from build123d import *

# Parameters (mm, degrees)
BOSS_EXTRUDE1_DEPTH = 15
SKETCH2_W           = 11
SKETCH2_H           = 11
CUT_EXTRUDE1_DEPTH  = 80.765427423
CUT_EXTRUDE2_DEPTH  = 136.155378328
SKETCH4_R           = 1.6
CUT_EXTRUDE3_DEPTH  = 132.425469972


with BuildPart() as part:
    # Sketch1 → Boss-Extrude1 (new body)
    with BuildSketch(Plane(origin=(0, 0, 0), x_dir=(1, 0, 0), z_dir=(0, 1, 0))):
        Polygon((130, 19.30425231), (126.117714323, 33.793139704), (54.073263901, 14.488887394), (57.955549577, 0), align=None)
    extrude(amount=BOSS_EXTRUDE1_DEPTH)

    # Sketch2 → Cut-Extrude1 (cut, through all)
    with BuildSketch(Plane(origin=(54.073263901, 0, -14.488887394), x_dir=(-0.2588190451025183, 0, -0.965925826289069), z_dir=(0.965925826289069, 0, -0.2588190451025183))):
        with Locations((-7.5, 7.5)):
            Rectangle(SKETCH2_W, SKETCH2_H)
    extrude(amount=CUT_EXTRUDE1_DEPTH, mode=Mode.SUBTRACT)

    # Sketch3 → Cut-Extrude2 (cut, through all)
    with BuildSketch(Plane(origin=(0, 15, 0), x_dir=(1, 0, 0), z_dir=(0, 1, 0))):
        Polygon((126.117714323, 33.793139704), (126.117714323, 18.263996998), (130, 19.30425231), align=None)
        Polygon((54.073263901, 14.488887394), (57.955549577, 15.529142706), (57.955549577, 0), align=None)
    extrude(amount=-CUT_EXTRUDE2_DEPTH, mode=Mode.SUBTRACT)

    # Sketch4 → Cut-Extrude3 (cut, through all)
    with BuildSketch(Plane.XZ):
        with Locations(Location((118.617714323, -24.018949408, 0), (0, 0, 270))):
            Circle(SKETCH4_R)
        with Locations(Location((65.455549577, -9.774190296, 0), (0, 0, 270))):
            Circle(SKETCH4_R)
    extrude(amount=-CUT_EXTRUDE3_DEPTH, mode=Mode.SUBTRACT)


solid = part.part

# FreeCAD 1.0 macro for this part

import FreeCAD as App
import Part
import Sketcher

V = App.Vector
Q = App.Units.Quantity

doc = App.newDocument("Part")
body = doc.addObject("PartDesign::Body", "Body")

sketch1 = doc.addObject("Sketcher::SketchObject", "Sketch")
body.addObject(sketch1)
sketch1.AttachmentSupport = (doc.XZ_Plane, [""])
sketch1.MapMode = "FlatFace"
sketch1.addGeometry([
    Part.LineSegment(V(130, -19, 0), V(126, -34, 0)),
    Part.LineSegment(V(126, -34, 0), V(54, -14, 0)),
    Part.LineSegment(V(54, -14, 0), V(58, 0, 0)),
    Part.LineSegment(V(58, 0, 0), V(130, -19, 0)),
], False)
sketch1.addConstraint([
    Sketcher.Constraint("Coincident", 0, 2, 1, 1),
    Sketcher.Constraint("Coincident", 1, 2, 2, 1),
    Sketcher.Constraint("Coincident", 2, 2, 3, 1),
    Sketcher.Constraint("Coincident", 3, 2, 0, 1),
    Sketcher.Constraint("PointOnObject", 2, 2, -1),
    Sketcher.Constraint("Perpendicular", 0, 1),
    Sketcher.Constraint("Perpendicular", 1, 2),
    Sketcher.Constraint("Perpendicular", 2, 3),
    Sketcher.Constraint("Angle", 0, Q("-105 deg")),
    Sketcher.Constraint("Distance", 0, Q("15 mm")),
    Sketcher.Constraint("DistanceX", -1, 1, 3, 2, Q("130 mm")),
    Sketcher.Constraint("DistanceY", 0, 2, -1, 1, Q("33.79314 mm")),
])
pad1 = doc.addObject("PartDesign::Pad", "Pad")
body.addObject(pad1)
pad1.Profile = sketch1
pad1.Length = 15
pad1.Reversed = True

sketch2 = doc.addObject("Sketcher::SketchObject", "Sketch001")
body.addObject(sketch2)
sketch2.Placement = App.Placement(V(54.073264, 0, -14.488887), App.Rotation(V(-0.258819045, 0, -0.965925826), V(0, 0.999999999, 0), V(0.965925826, 0, -0.258819045), "ZXY"))
sketch2.addGeometry([
    Part.LineSegment(V(-13, 13, 0), V(-13, 2, 0)),
    Part.LineSegment(V(-13, 2, 0), V(-2, 2, 0)),
    Part.LineSegment(V(-2, 2, 0), V(-2, 13, 0)),
    Part.LineSegment(V(-2, 13, 0), V(-13, 13, 0)),
], False)
sketch2.addConstraint([
    Sketcher.Constraint("Coincident", 0, 2, 1, 1),
    Sketcher.Constraint("Coincident", 1, 2, 2, 1),
    Sketcher.Constraint("Coincident", 2, 2, 3, 1),
    Sketcher.Constraint("Coincident", 3, 2, 0, 1),
    Sketcher.Constraint("Vertical", 0),
    Sketcher.Constraint("Horizontal", 1),
    Sketcher.Constraint("Vertical", 2),
    Sketcher.Constraint("Horizontal", 3),
    Sketcher.Constraint("Equal", 3, 0),
    Sketcher.Constraint("DistanceX", 1, 1, 1, 2, Q("11 mm")),
    Sketcher.Constraint("DistanceX", 0, 2, -1, 1, Q("13 mm")),
    Sketcher.Constraint("DistanceY", -1, 1, 0, 2, Q("2 mm")),
])
pocket1 = doc.addObject("PartDesign::Pocket", "Pocket")
body.addObject(pocket1)
pocket1.Profile = sketch2
pocket1.Type = "ThroughAll"
pocket1.Reversed = True

sketch3 = doc.addObject("Sketcher::SketchObject", "Sketch002")
body.addObject(sketch3)
sketch3.AttachmentSupport = (doc.XZ_Plane, [""])
sketch3.MapMode = "FlatFace"
sketch3.AttachmentOffset = App.Placement(V(0, 0, -15), App.Rotation())
sketch3.addGeometry([
    Part.LineSegment(V(126.1, -33.8, 0), V(126.1, -18.3, 0)),
    Part.LineSegment(V(126.1, -18.3, 0), V(130, -19.3, 0)),
    Part.LineSegment(V(130, -19.3, 0), V(126.1, -33.8, 0)),
    Part.LineSegment(V(58, -15.5, 0), V(54.1, -14.5, 0)),
    Part.LineSegment(V(54.1, -14.5, 0), V(58, 0, 0)),
    Part.LineSegment(V(58, 0, 0), V(58, -15.5, 0)),
], False)
sketch3.addConstraint([
    Sketcher.Constraint("Coincident", 0, 2, 1, 1),
    Sketcher.Constraint("Coincident", 1, 2, 2, 1),
    Sketcher.Constraint("Coincident", 2, 2, 0, 1),
    Sketcher.Constraint("Coincident", 3, 2, 4, 1),
    Sketcher.Constraint("Coincident", 4, 2, 5, 1),
    Sketcher.Constraint("Coincident", 5, 2, 3, 1),
    Sketcher.Constraint("Vertical", 0),
    Sketcher.Constraint("Vertical", 5),
    Sketcher.Constraint("PointOnObject", 4, 2, -1),
    Sketcher.Constraint("Perpendicular", 1, 2),
    Sketcher.Constraint("Perpendicular", 2, 3),
    Sketcher.Constraint("Perpendicular", 3, 4),
    Sketcher.Constraint("Equal", 0, 5),
    Sketcher.Constraint("Angle", 1, Q("-15 deg")),
    Sketcher.Constraint("Distance", 2, Q("15 mm")),
    Sketcher.Constraint("DistanceX", -1, 1, 1, 2, Q("130 mm")),
    Sketcher.Constraint("DistanceY", 2, 2, -1, 1, Q("33.79314 mm")),
    Sketcher.Constraint("DistanceX", -1, 1, 4, 2, Q("57.95555 mm")),
])
pocket2 = doc.addObject("PartDesign::Pocket", "Pocket001")
body.addObject(pocket2)
pocket2.Profile = sketch3
pocket2.Type = "ThroughAll"
pocket2.Reversed = True

sketch4 = doc.addObject("Sketcher::SketchObject", "Sketch003")
body.addObject(sketch4)
sketch4.AttachmentSupport = (doc.XZ_Plane, [""])
sketch4.MapMode = "FlatFace"
sketch4.addGeometry([
    Part.Circle(V(118.6, -24, 0), V(0, 0, 1), 1.6),
    Part.Circle(V(65.5, -9.8, 0), V(0, 0, 1), 1.6),
], False)
sketch4.addConstraint([
    Sketcher.Constraint("Equal", 0, 1),
    Sketcher.Constraint("Diameter", 0, Q("3.2 mm")),
    Sketcher.Constraint("DistanceY", 0, 3, -1, 1, Q("24.018949 mm")),
    Sketcher.Constraint("DistanceX", -1, 1, 1, 3, Q("65.45555 mm")),
    Sketcher.Constraint("DistanceY", 1, 3, -1, 1, Q("9.77419 mm")),
    Sketcher.Constraint("DistanceX", -1, 1, 0, 3, Q("118.617714 mm")),
])
pocket3 = doc.addObject("PartDesign::Pocket", "Pocket002")
body.addObject(pocket3)
pocket3.Profile = sketch4
pocket3.Type = "ThroughAll"

doc.recompute()
